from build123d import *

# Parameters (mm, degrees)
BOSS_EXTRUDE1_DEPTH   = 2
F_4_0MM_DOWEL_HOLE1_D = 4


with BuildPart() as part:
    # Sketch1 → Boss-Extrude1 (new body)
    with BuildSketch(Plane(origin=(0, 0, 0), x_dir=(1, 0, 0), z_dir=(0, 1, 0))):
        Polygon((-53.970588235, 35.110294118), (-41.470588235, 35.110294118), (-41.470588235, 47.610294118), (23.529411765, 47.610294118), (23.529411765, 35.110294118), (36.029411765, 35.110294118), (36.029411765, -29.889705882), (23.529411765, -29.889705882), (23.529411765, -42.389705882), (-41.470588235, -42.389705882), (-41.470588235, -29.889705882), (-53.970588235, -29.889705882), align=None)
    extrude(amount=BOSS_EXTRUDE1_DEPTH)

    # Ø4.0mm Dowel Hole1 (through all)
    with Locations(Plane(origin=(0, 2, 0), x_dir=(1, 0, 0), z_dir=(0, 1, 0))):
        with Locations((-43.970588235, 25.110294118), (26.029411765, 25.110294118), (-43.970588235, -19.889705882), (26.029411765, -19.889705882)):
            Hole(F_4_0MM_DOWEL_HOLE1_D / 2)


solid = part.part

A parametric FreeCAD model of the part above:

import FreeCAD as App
import Part
import Sketcher

V = App.Vector
Q = App.Units.Quantity


def add_polygon(sketch, points):
    """Adds a closed chain of lines whose ends are joined by coincident constraints."""
    first, n = sketch.GeometryCount, len(points)
    for a, b in zip(points, points[1:] + points[:1]):
        sketch.addGeometry(Part.LineSegment(App.Vector(*a, 0), App.Vector(*b, 0)), False)
    for i in range(n):
        sketch.addConstraint(Sketcher.Constraint("Coincident", first + i, 2, first + (i + 1) % n, 1))

doc = App.newDocument("Part")
body = doc.addObject("PartDesign::Body", "Body")

# Sketch on XZ plane
sketch1 = body.newObject("Sketcher::SketchObject", "Sketch")
sketch1.AttachmentSupport = (doc.getObject("XZ_Plane"), [""])
sketch1.MapMode = "FlatFace"
add_polygon(sketch1, [(-41.470588, -35.110294), (-53.970588, -35.110294), (-53.970588, 29.889706), (-41.470588, 29.889706), (-41.470588, 42.389706), (23.529412, 42.389706), (23.529412, 29.889706), (36.029412, 29.889706), (36.029412, -35.110294), (23.529412, -35.110294), (23.529412, -47.610294), (-41.470588, -47.610294)])  # lines 0-11
sketch1.addConstraint([
    Sketcher.Constraint("Horizontal", 0),
    Sketcher.Constraint("Vertical", 1),
    Sketcher.Constraint("Horizontal", 2),
    Sketcher.Constraint("Vertical", 3),
    Sketcher.Constraint("Horizontal", 4),
    Sketcher.Constraint("Vertical", 5),
    Sketcher.Constraint("Horizontal", 6),
    Sketcher.Constraint("Vertical", 7),
    Sketcher.Constraint("Horizontal", 8),
    Sketcher.Constraint("Vertical", 9),
    Sketcher.Constraint("Horizontal", 10),
    Sketcher.Constraint("Vertical", 11),
    Sketcher.Constraint("Horizontal", 2, 2, 5, 2),
    Sketcher.Constraint("Horizontal", 0, 2, 7, 2),
    Sketcher.Constraint("Vertical", 5, 2, 8, 2),
    Sketcher.Constraint("Vertical", 3, 2, 10, 2),
    Sketcher.Constraint("Equal", 2, 6),
    Sketcher.Constraint("Equal", 10, 1),
    Sketcher.Constraint("Equal", 8, 3),
    Sketcher.Constraint("Equal", 5, 9),
    Sketcher.Constraint("DistanceX", 4, 1, 4, 2, Q("65 mm")),
    Sketcher.Constraint("DistanceX", 0, 2, 0, 1, Q("12.5 mm")),
    Sketcher.Constraint("DistanceX", 0, 2, -1, 1, Q("53.970588 mm")),
    Sketcher.Constraint("DistanceY", 0, 2, -1, 1, Q("35.110294 mm")),
])
pad1 = body.newObject("PartDesign::Pad", "Pad")
pad1.Profile = sketch1
pad1.Length = 2
pad1.Reversed = True

# Sketch on XZ plane
sketch2 = body.newObject("Sketcher::SketchObject", "Sketch001")
sketch2.AttachmentSupport = (doc.getObject("XZ_Plane"), [""])
sketch2.MapMode = "FlatFace"
sketch2.AttachmentOffset = App.Placement(V(0, 0, -2), App.Rotation())
sketch2.addGeometry([
    Part.Circle(V(-43.970588, -25.110294, 0), V(0, 0, 1), 2),
    Part.Circle(V(26.029412, -25.110294, 0), V(0, 0, 1), 2),
    Part.Circle(V(-43.970588, 19.889706, 0), V(0, 0, 1), 2),
    Part.Circle(V(26.029412, 19.889706, 0), V(0, 0, 1), 2),
], False)
sketch2.addConstraint([
    Sketcher.Constraint("Equal", 0, 1),
    Sketcher.Constraint("Equal", 1, 2),
    Sketcher.Constraint("Equal", 2, 3),
    Sketcher.Constraint("Horizontal", 0, 3, 1, 3),
    Sketcher.Constraint("Horizontal", 2, 3, 3, 3),
    Sketcher.Constraint("Vertical", 0, 3, 2, 3),
    Sketcher.Constraint("Vertical", 1, 3, 3, 3),
    Sketcher.Constraint("Diameter", 0, Q("4 mm")),
    Sketcher.Constraint("DistanceX", 0, 3, 1, 3, Q("70 mm")),
    Sketcher.Constraint("DistanceY", 0, 3, 2, 3, Q("45 mm")),
    Sketcher.Constraint("DistanceX", 0, 3, -1, 1, Q("43.970588 mm")),
    Sketcher.Constraint("DistanceY", 0, 3, -1, 1, Q("25.110294 mm")),
])
doc.recompute()
hole = body.newObject("PartDesign::Hole", "Hole")
hole.Profile = sketch2
hole.ThreadType = "None"
hole.Diameter = 4
hole.DepthType = "ThroughAll"
hole.Reversed = True

doc.recompute()
